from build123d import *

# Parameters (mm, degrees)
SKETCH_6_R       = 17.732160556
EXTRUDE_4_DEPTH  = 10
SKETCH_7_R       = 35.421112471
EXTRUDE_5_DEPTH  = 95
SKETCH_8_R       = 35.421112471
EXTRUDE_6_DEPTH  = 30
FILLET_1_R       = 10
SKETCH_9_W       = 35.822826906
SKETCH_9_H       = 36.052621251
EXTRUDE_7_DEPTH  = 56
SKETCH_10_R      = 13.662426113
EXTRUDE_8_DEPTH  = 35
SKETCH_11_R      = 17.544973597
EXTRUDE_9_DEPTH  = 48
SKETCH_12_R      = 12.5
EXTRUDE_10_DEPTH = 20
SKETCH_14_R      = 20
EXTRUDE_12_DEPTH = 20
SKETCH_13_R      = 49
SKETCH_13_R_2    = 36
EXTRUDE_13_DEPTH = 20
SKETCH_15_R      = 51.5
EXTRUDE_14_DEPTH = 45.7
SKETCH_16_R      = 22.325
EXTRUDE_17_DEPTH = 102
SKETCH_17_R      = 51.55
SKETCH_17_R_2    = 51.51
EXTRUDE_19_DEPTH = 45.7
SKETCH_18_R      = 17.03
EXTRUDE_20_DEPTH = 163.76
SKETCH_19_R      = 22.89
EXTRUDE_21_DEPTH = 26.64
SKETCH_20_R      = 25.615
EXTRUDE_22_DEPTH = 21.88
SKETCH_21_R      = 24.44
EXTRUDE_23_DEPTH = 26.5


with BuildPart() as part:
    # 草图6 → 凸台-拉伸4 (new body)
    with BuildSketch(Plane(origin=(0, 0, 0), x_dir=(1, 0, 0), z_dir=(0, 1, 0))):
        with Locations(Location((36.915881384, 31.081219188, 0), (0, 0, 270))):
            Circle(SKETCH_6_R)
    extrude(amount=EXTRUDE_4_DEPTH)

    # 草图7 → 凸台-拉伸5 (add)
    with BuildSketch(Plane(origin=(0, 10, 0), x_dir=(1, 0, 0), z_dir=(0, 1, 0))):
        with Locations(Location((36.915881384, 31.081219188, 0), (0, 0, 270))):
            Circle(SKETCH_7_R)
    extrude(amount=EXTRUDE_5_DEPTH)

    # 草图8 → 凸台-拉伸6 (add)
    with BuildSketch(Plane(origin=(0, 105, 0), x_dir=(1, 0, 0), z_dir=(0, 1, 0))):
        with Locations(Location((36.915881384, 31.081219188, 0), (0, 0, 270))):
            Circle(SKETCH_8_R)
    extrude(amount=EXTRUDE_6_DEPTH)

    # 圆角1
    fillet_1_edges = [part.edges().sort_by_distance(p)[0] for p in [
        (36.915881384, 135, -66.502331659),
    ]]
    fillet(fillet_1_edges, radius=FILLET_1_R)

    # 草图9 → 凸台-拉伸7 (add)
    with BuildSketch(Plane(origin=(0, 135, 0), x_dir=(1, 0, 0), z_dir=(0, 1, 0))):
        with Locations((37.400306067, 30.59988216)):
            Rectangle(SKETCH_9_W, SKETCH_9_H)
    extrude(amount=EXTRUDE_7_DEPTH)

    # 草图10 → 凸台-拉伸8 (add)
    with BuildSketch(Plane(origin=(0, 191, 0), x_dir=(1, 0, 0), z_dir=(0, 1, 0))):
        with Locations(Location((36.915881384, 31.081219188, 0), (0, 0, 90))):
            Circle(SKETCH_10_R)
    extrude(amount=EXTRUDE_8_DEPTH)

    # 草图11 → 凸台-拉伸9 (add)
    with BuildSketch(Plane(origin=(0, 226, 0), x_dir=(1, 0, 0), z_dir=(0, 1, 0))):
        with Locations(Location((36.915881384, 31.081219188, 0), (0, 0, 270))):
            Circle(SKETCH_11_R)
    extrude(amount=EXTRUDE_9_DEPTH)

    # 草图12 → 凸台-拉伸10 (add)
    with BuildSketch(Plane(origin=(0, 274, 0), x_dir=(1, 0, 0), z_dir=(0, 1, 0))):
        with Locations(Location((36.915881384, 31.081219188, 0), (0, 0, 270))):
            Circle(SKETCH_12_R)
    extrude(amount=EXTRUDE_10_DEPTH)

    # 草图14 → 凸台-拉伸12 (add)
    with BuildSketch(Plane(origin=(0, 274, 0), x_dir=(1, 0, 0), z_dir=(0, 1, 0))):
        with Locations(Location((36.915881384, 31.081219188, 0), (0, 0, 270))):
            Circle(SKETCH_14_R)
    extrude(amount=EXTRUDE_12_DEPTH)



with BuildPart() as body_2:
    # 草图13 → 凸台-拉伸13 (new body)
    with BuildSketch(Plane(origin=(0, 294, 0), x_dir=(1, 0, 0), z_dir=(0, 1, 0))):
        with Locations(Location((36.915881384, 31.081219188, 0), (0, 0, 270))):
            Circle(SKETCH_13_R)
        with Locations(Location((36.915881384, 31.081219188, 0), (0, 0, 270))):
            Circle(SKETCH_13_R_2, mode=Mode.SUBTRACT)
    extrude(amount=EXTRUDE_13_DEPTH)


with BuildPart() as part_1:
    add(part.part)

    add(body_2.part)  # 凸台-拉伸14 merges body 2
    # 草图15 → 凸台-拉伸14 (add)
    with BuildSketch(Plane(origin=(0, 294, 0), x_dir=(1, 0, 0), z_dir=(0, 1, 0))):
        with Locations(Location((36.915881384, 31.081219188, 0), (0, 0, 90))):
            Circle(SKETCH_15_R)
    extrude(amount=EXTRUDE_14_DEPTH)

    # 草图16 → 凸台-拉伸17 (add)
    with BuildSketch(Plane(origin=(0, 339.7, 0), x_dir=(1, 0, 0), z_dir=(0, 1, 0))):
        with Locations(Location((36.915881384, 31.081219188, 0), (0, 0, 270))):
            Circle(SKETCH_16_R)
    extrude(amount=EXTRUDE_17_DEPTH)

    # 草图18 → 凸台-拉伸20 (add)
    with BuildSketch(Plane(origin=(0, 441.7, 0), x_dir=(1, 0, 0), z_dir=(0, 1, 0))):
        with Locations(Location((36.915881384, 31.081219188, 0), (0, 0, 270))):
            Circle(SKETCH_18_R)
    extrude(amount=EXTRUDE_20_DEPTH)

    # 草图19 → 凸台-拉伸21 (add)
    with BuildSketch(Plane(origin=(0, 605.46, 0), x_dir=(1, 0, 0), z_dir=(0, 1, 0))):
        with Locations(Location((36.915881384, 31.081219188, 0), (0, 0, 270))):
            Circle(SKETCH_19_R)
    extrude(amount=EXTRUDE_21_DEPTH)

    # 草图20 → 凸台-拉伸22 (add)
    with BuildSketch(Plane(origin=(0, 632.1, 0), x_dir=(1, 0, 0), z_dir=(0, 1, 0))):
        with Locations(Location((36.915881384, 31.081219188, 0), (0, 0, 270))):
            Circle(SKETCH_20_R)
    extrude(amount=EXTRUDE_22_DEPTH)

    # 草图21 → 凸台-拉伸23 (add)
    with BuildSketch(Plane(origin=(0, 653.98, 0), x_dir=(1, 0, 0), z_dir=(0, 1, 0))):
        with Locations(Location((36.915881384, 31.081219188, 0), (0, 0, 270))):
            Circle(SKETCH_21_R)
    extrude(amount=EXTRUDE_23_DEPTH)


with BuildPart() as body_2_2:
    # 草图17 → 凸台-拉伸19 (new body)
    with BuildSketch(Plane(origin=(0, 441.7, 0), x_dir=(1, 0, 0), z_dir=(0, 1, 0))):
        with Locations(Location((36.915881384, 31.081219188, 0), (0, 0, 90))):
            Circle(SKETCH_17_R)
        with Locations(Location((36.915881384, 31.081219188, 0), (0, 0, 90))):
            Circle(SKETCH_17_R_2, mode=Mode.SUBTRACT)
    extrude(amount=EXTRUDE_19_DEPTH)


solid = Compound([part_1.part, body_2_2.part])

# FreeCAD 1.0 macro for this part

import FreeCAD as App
import Part
import Sketcher
Q = App.Units.Quantity


def edges_at(feature, points):
    """Names of the edges that pass closest to the given points."""
    edges = feature.Shape.Edges
    near = lambda p: min(range(len(edges)), key=lambda i: edges[i].distToShape(Part.Vertex(*p))[0])
    return sorted({f"Edge{near(p) + 1}" for p in points})


def add_polygon(sketch, points):
    """Adds a closed chain of lines whose ends are joined by coincident constraints."""
    first, n = sketch.GeometryCount, len(points)
    for a, b in zip(points, points[1:] + points[:1]):
        sketch.addGeometry(Part.LineSegment(App.Vector(*a, 0), App.Vector(*b, 0)), False)
    for i in range(n):
        sketch.addConstraint(Sketcher.Constraint("Coincident", first + i, 2, first + (i + 1) % n, 1))

doc = App.newDocument("Part")
body = doc.addObject("PartDesign::Body", "Body")

# Sketch on XZ plane
sketch1 = doc.addObject("Sketcher::SketchObject", "Sketch")
body.addObject(sketch1)
sketch1.AttachmentSupport = (doc.XZ_Plane, [""])
sketch1.MapMode = "FlatFace"
sketch1.addGeometry(Part.Circle(App.Vector(37, -31, 0), App.Vector(0, 0, 1), 18), False)
sketch1.addConstraint(Sketcher.Constraint("Diameter", 0, Q("35.464321 mm")))
sketch1.addConstraint(Sketcher.Constraint("DistanceX", -1, 1, 0, 3, Q("36.915881 mm")))
sketch1.addConstraint(Sketcher.Constraint("DistanceY", 0, 3, -1, 1, Q("31.081219 mm")))
pad1 = doc.addObject("PartDesign::Pad", "Pad")
body.addObject(pad1)
pad1.Profile = sketch1
pad1.Length = 10
pad1.Reversed = True

# Sketch on XZ plane
sketch2 = doc.addObject("Sketcher::SketchObject", "Sketch001")
body.addObject(sketch2)
sketch2.AttachmentSupport = (doc.XZ_Plane, [""])
sketch2.MapMode = "FlatFace"
sketch2.AttachmentOffset = App.Placement(App.Vector(0, 0, -10), App.Rotation())
sketch2.addGeometry(Part.Circle(App.Vector(37, -31, 0), App.Vector(0, 0, 1), 35), False)
sketch2.addConstraint(Sketcher.Constraint("Diameter", 0, Q("70.842225 mm")))
sketch2.addConstraint(Sketcher.Constraint("DistanceX", -1, 1, 0, 3, Q("36.915881 mm")))
sketch2.addConstraint(Sketcher.Constraint("DistanceY", 0, 3, -1, 1, Q("31.081219 mm")))
pad2 = doc.addObject("PartDesign::Pad", "Pad001")
body.addObject(pad2)
pad2.Profile = sketch2
pad2.Length = 95
pad2.Reversed = True

# Sketch on XZ plane
sketch3 = doc.addObject("Sketcher::SketchObject", "Sketch002")
body.addObject(sketch3)
sketch3.AttachmentSupport = (doc.XZ_Plane, [""])
sketch3.MapMode = "FlatFace"
sketch3.AttachmentOffset = App.Placement(App.Vector(0, 0, -105), App.Rotation())
sketch3.addGeometry(Part.Circle(App.Vector(37, -31, 0), App.Vector(0, 0, 1), 35), False)
sketch3.addConstraint(Sketcher.Constraint("Diameter", 0, Q("70.842225 mm")))
sketch3.addConstraint(Sketcher.Constraint("DistanceX", -1, 1, 0, 3, Q("36.915881 mm")))
sketch3.addConstraint(Sketcher.Constraint("DistanceY", 0, 3, -1, 1, Q("31.081219 mm")))
pad3 = doc.addObject("PartDesign::Pad", "Pad002")
body.addObject(pad3)
pad3.Profile = sketch3
pad3.Length = 30
pad3.Reversed = True
doc.recompute()

fillet = doc.addObject("PartDesign::Fillet", "Fillet")
body.addObject(fillet)
fillet.Base = (pad3, edges_at(pad3, [(36.916, 135, -66.502)]))
fillet.Radius = 10

# Sketch on XZ plane
sketch4 = doc.addObject("Sketcher::SketchObject", "Sketch003")
body.addObject(sketch4)
sketch4.AttachmentSupport = (doc.XZ_Plane, [""])
sketch4.MapMode = "FlatFace"
sketch4.AttachmentOffset = App.Placement(App.Vector(0, 0, -135), App.Rotation())
add_polygon(sketch4, [(19, -49), (19, -13), (55, -13), (55, -49)])  # lines 0-3
sketch4.addConstraint(Sketcher.Constraint("Vertical", 0))
sketch4.addConstraint(Sketcher.Constraint("Horizontal", 1))
sketch4.addConstraint(Sketcher.Constraint("Vertical", 2))
sketch4.addConstraint(Sketcher.Constraint("Horizontal", 3))
sketch4.addConstraint(Sketcher.Constraint("DistanceY", 0, 1, 0, 2, Q("36.052621 mm")))
sketch4.addConstraint(Sketcher.Constraint("DistanceX", 1, 1, 1, 2, Q("35.822827 mm")))
sketch4.addConstraint(Sketcher.Constraint("DistanceY", 0, 2, -1, 1, Q("12.573572 mm")))
sketch4.addConstraint(Sketcher.Constraint("DistanceX", -1, 1, 1, 2, Q("55.31172 mm")))
pad4 = doc.addObject("PartDesign::Pad", "Pad003")
body.addObject(pad4)
pad4.Profile = sketch4
pad4.Length = 56
pad4.Reversed = True

# Sketch on XZ plane
sketch5 = doc.addObject("Sketcher::SketchObject", "Sketch004")
body.addObject(sketch5)
sketch5.AttachmentSupport = (doc.XZ_Plane, [""])
sketch5.MapMode = "FlatFace"
sketch5.AttachmentOffset = App.Placement(App.Vector(0, 0, -191), App.Rotation())
sketch5.addGeometry(Part.Circle(App.Vector(37, -31, 0), App.Vector(0, 0, 1), 14), False)
sketch5.addConstraint(Sketcher.Constraint("Diameter", 0, Q("27.324852 mm")))
sketch5.addConstraint(Sketcher.Constraint("DistanceX", -1, 1, 0, 3, Q("36.915881 mm")))
sketch5.addConstraint(Sketcher.Constraint("DistanceY", 0, 3, -1, 1, Q("31.081219 mm")))
pad5 = doc.addObject("PartDesign::Pad", "Pad004")
body.addObject(pad5)
pad5.Profile = sketch5
pad5.Length = 35
pad5.Reversed = True

# Sketch on XZ plane
sketch6 = doc.addObject("Sketcher::SketchObject", "Sketch005")
body.addObject(sketch6)
sketch6.AttachmentSupport = (doc.XZ_Plane, [""])
sketch6.MapMode = "FlatFace"
sketch6.AttachmentOffset = App.Placement(App.Vector(0, 0, -226), App.Rotation())
sketch6.addGeometry(Part.Circle(App.Vector(37, -31, 0), App.Vector(0, 0, 1), 18), False)
sketch6.addConstraint(Sketcher.Constraint("Diameter", 0, Q("35.089947 mm")))
sketch6.addConstraint(Sketcher.Constraint("DistanceX", -1, 1, 0, 3, Q("36.915881 mm")))
sketch6.addConstraint(Sketcher.Constraint("DistanceY", 0, 3, -1, 1, Q("31.081219 mm")))
pad6 = doc.addObject("PartDesign::Pad", "Pad005")
body.addObject(pad6)
pad6.Profile = sketch6
pad6.Length = 48
pad6.Reversed = True

# Sketch on XZ plane
sketch7 = doc.addObject("Sketcher::SketchObject", "Sketch006")
body.addObject(sketch7)
sketch7.AttachmentSupport = (doc.XZ_Plane, [""])
sketch7.MapMode = "FlatFace"
sketch7.AttachmentOffset = App.Placement(App.Vector(0, 0, -274), App.Rotation())
sketch7.addGeometry(Part.Circle(App.Vector(37, -31, 0), App.Vector(0, 0, 1), 12), False)
sketch7.addConstraint(Sketcher.Constraint("Diameter", 0, Q("25 mm")))
sketch7.addConstraint(Sketcher.Constraint("DistanceX", -1, 1, 0, 3, Q("36.915881 mm")))
sketch7.addConstraint(Sketcher.Constraint("DistanceY", 0, 3, -1, 1, Q("31.081219 mm")))
pad7 = doc.addObject("PartDesign::Pad", "Pad006")
body.addObject(pad7)
pad7.Profile = sketch7
pad7.Length = 20
pad7.Reversed = True

# Sketch on XZ plane
sketch8 = doc.addObject("Sketcher::SketchObject", "Sketch007")
body.addObject(sketch8)
sketch8.AttachmentSupport = (doc.XZ_Plane, [""])
sketch8.MapMode = "FlatFace"
sketch8.AttachmentOffset = App.Placement(App.Vector(0, 0, -274), App.Rotation())
sketch8.addGeometry(Part.Circle(App.Vector(37, -31, 0), App.Vector(0, 0, 1), 20), False)
sketch8.addConstraint(Sketcher.Constraint("Diameter", 0, Q("40 mm")))
sketch8.addConstraint(Sketcher.Constraint("DistanceX", -1, 1, 0, 3, Q("36.915881 mm")))
sketch8.addConstraint(Sketcher.Constraint("DistanceY", 0, 3, -1, 1, Q("31.081219 mm")))
pad8 = doc.addObject("PartDesign::Pad", "Pad007")
body.addObject(pad8)
pad8.Profile = sketch8
pad8.Length = 20
pad8.Reversed = True
body2 = doc.addObject("PartDesign::Body", "Body001")

# Sketch on XZ plane
sketch9 = doc.addObject("Sketcher::SketchObject", "Sketch008")
body2.addObject(sketch9)
sketch9.AttachmentSupport = (doc.getObject("XZ_Plane001"), [""])
sketch9.MapMode = "FlatFace"
sketch9.AttachmentOffset = App.Placement(App.Vector(0, 0, -294), App.Rotation())
sketch9.addGeometry(Part.Circle(App.Vector(37, -31, 0), App.Vector(0, 0, 1), 49), False)
sketch9.addGeometry(Part.Circle(App.Vector(37, -31, 0), App.Vector(0, 0, 1), 36), False)
sketch9.addConstraint(Sketcher.Constraint("Coincident", 1, 3, 0, 3))
sketch9.addConstraint(Sketcher.Constraint("Diameter", 0, Q("98 mm")))
sketch9.addConstraint(Sketcher.Constraint("Diameter", 1, Q("72 mm")))
sketch9.addConstraint(Sketcher.Constraint("DistanceX", -1, 1, 0, 3, Q("36.915881 mm")))
sketch9.addConstraint(Sketcher.Constraint("DistanceY", 0, 3, -1, 1, Q("31.081219 mm")))
pad9 = doc.addObject("PartDesign::Pad", "Pad008")
body2.addObject(pad9)
pad9.Profile = sketch9
pad9.Length = 20
pad9.Reversed = True
body.AllowCompound = True
doc.recompute()

boolean = doc.addObject("PartDesign::Boolean", "Boolean")
body.addObject(boolean)
boolean.Type = "Fuse"
boolean.addObjects([body2])

# Sketch on XZ plane
sketch10 = doc.addObject("Sketcher::SketchObject", "Sketch009")
body.addObject(sketch10)
sketch10.AttachmentSupport = (doc.XZ_Plane, [""])
sketch10.MapMode = "FlatFace"
sketch10.AttachmentOffset = App.Placement(App.Vector(0, 0, -294), App.Rotation())
sketch10.addGeometry(Part.Circle(App.Vector(37, -31, 0), App.Vector(0, 0, 1), 52), False)
sketch10.addConstraint(Sketcher.Constraint("Diameter", 0, Q("103 mm")))
sketch10.addConstraint(Sketcher.Constraint("DistanceX", -1, 1, 0, 3, Q("36.915881 mm")))
sketch10.addConstraint(Sketcher.Constraint("DistanceY", 0, 3, -1, 1, Q("31.081219 mm")))
pad10 = doc.addObject("PartDesign::Pad", "Pad009")
body.addObject(pad10)
pad10.Profile = sketch10
pad10.Length = 45.7
pad10.Reversed = True

# Sketch on XZ plane
sketch11 = doc.addObject("Sketcher::SketchObject", "Sketch010")
body.addObject(sketch11)
sketch11.AttachmentSupport = (doc.XZ_Plane, [""])
sketch11.MapMode = "FlatFace"
sketch11.AttachmentOffset = App.Placement(App.Vector(0, 0, -339.7), App.Rotation())
sketch11.addGeometry(Part.Circle(App.Vector(37, -31, 0), App.Vector(0, 0, 1), 22), False)
sketch11.addConstraint(Sketcher.Constraint("Diameter", 0, Q("44.65 mm")))
sketch11.addConstraint(Sketcher.Constraint("DistanceX", -1, 1, 0, 3, Q("36.915881 mm")))
sketch11.addConstraint(Sketcher.Constraint("DistanceY", 0, 3, -1, 1, Q("31.081219 mm")))
pad11 = doc.addObject("PartDesign::Pad", "Pad010")
body.addObject(pad11)
pad11.Profile = sketch11
pad11.Length = 102
pad11.Reversed = True

# Sketch on XZ plane
sketch12 = doc.addObject("Sketcher::SketchObject", "Sketch011")
body.addObject(sketch12)
sketch12.AttachmentSupport = (doc.XZ_Plane, [""])
sketch12.MapMode = "FlatFace"
sketch12.AttachmentOffset = App.Placement(App.Vector(0, 0, -441.7), App.Rotation())
sketch12.addGeometry(Part.Circle(App.Vector(37, -31, 0), App.Vector(0, 0, 1), 17), False)
sketch12.addConstraint(Sketcher.Constraint("Diameter", 0, Q("34.06 mm")))
sketch12.addConstraint(Sketcher.Constraint("DistanceX", -1, 1, 0, 3, Q("36.915881 mm")))
sketch12.addConstraint(Sketcher.Constraint("DistanceY", 0, 3, -1, 1, Q("31.081219 mm")))
pad12 = doc.addObject("PartDesign::Pad", "Pad011")
body.addObject(pad12)
pad12.Profile = sketch12
pad12.Length = 163.76
pad12.Reversed = True

# Sketch on XZ plane
sketch13 = doc.addObject("Sketcher::SketchObject", "Sketch012")
body.addObject(sketch13)
sketch13.AttachmentSupport = (doc.XZ_Plane, [""])
sketch13.MapMode = "FlatFace"
sketch13.AttachmentOffset = App.Placement(App.Vector(0, 0, -605.46), App.Rotation())
sketch13.addGeometry(Part.Circle(App.Vector(37, -31, 0), App.Vector(0, 0, 1), 23), False)
sketch13.addConstraint(Sketcher.Constraint("Diameter", 0, Q("45.78 mm")))
sketch13.addConstraint(Sketcher.Constraint("DistanceX", -1, 1, 0, 3, Q("36.915881 mm")))
sketch13.addConstraint(Sketcher.Constraint("DistanceY", 0, 3, -1, 1, Q("31.081219 mm")))
pad13 = doc.addObject("PartDesign::Pad", "Pad012")
body.addObject(pad13)
pad13.Profile = sketch13
pad13.Length = 26.64
pad13.Reversed = True

# Sketch on XZ plane
sketch14 = doc.addObject("Sketcher::SketchObject", "Sketch013")
body.addObject(sketch14)
sketch14.AttachmentSupport = (doc.XZ_Plane, [""])
sketch14.MapMode = "FlatFace"
sketch14.AttachmentOffset = App.Placement(App.Vector(0, 0, -632.1), App.Rotation())
sketch14.addGeometry(Part.Circle(App.Vector(37, -31, 0), App.Vector(0, 0, 1), 26), False)
sketch14.addConstraint(Sketcher.Constraint("Diameter", 0, Q("51.23 mm")))
sketch14.addConstraint(Sketcher.Constraint("DistanceX", -1, 1, 0, 3, Q("36.915881 mm")))
sketch14.addConstraint(Sketcher.Constraint("DistanceY", 0, 3, -1, 1, Q("31.081219 mm")))
pad14 = doc.addObject("PartDesign::Pad", "Pad013")
body.addObject(pad14)
pad14.Profile = sketch14
pad14.Length = 21.88
pad14.Reversed = True

# Sketch on XZ plane
sketch15 = doc.addObject("Sketcher::SketchObject", "Sketch014")
body.addObject(sketch15)
sketch15.AttachmentSupport = (doc.XZ_Plane, [""])
sketch15.MapMode = "FlatFace"
sketch15.AttachmentOffset = App.Placement(App.Vector(0, 0, -653.98), App.Rotation())
sketch15.addGeometry(Part.Circle(App.Vector(37, -31, 0), App.Vector(0, 0, 1), 24), False)
sketch15.addConstraint(Sketcher.Constraint("Diameter", 0, Q("48.88 mm")))
sketch15.addConstraint(Sketcher.Constraint("DistanceX", -1, 1, 0, 3, Q("36.915881 mm")))
sketch15.addConstraint(Sketcher.Constraint("DistanceY", 0, 3, -1, 1, Q("31.081219 mm")))
pad15 = doc.addObject("PartDesign::Pad", "Pad014")
body.addObject(pad15)
pad15.Profile = sketch15
pad15.Length = 26.5
pad15.Reversed = True
body3 = doc.addObject("PartDesign::Body", "Body002")

# Sketch on XZ plane
sketch16 = doc.addObject("Sketcher::SketchObject", "Sketch015")
body3.addObject(sketch16)
sketch16.AttachmentSupport = (doc.getObject("XZ_Plane002"), [""])
sketch16.MapMode = "FlatFace"
sketch16.AttachmentOffset = App.Placement(App.Vector(0, 0, -441.7), App.Rotation())
sketch16.addGeometry(Part.Circle(App.Vector(37, -31, 0), App.Vector(0, 0, 1), 52), False)
sketch16.addGeometry(Part.Circle(App.Vector(37, -31, 0), App.Vector(0, 0, 1), 52), False)
sketch16.addConstraint(Sketcher.Constraint("Coincident", 1, 3, 0, 3))
sketch16.addConstraint(Sketcher.Constraint("Diameter", 0, Q("103.1 mm")))
sketch16.addConstraint(Sketcher.Constraint("Diameter", 1, Q("103.02 mm")))
sketch16.addConstraint(Sketcher.Constraint("DistanceX", -1, 1, 0, 3, Q("36.915881 mm")))
sketch16.addConstraint(Sketcher.Constraint("DistanceY", 0, 3, -1, 1, Q("31.081219 mm")))
pad16 = doc.addObject("PartDesign::Pad", "Pad015")
body3.addObject(pad16)
pad16.Profile = sketch16
pad16.Length = 45.7
pad16.Reversed = True

doc.recompute()
